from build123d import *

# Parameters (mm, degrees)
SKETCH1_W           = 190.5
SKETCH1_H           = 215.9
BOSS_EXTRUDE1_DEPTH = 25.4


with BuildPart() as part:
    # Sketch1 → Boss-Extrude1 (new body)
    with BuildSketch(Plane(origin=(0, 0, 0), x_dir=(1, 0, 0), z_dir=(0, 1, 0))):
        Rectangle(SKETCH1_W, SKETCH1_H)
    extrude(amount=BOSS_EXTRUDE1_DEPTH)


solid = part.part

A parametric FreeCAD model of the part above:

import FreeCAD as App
import Part
import Sketcher
Q = App.Units.Quantity

doc = App.newDocument("Part")
body = doc.addObject("PartDesign::Body", "Body")

# Sketch on XZ plane
sketch1 = body.newObject("Sketcher::SketchObject", "Sketch")
sketch1.AttachmentSupport = (doc.getObject("XZ_Plane"), [""])
sketch1.MapMode = "FlatFace"
sketch1.addGeometry([
    Part.LineSegment(App.Vector(-95, -108, 0), App.Vector(-95, 108, 0)),
    Part.LineSegment(App.Vector(-95, 108, 0), App.Vector(95, 108, 0)),
    Part.LineSegment(App.Vector(95, 108, 0), App.Vector(95, -108, 0)),
    Part.LineSegment(App.Vector(95, -108, 0), App.Vector(-95, -108, 0)),
], False)
sketch1.addConstraint([
    Sketcher.Constraint("Coincident", 0, 2, 1, 1),
    Sketcher.Constraint("Coincident", 1, 2, 2, 1),
    Sketcher.Constraint("Coincident", 2, 2, 3, 1),
    Sketcher.Constraint("Coincident", 3, 2, 0, 1),
    Sketcher.Constraint("Vertical", 0),
    Sketcher.Constraint("Horizontal", 1),
    Sketcher.Constraint("Vertical", 2),
    Sketcher.Constraint("Horizontal", 3),
    Sketcher.Constraint("Symmetric", 0, 2, 2, 2, -1, 1),
    Sketcher.Constraint("DistanceX", 1, 1, 1, 2, Q("7.5 in")),
    Sketcher.Constraint("DistanceY", 0, 1, 0, 2, Q("8.5 in")),
])
pad1 = body.newObject("PartDesign::Pad", "Pad")
pad1.Profile = sketch1
pad1.Length = Q("1 in")
pad1.Reversed = True

doc.recompute()
